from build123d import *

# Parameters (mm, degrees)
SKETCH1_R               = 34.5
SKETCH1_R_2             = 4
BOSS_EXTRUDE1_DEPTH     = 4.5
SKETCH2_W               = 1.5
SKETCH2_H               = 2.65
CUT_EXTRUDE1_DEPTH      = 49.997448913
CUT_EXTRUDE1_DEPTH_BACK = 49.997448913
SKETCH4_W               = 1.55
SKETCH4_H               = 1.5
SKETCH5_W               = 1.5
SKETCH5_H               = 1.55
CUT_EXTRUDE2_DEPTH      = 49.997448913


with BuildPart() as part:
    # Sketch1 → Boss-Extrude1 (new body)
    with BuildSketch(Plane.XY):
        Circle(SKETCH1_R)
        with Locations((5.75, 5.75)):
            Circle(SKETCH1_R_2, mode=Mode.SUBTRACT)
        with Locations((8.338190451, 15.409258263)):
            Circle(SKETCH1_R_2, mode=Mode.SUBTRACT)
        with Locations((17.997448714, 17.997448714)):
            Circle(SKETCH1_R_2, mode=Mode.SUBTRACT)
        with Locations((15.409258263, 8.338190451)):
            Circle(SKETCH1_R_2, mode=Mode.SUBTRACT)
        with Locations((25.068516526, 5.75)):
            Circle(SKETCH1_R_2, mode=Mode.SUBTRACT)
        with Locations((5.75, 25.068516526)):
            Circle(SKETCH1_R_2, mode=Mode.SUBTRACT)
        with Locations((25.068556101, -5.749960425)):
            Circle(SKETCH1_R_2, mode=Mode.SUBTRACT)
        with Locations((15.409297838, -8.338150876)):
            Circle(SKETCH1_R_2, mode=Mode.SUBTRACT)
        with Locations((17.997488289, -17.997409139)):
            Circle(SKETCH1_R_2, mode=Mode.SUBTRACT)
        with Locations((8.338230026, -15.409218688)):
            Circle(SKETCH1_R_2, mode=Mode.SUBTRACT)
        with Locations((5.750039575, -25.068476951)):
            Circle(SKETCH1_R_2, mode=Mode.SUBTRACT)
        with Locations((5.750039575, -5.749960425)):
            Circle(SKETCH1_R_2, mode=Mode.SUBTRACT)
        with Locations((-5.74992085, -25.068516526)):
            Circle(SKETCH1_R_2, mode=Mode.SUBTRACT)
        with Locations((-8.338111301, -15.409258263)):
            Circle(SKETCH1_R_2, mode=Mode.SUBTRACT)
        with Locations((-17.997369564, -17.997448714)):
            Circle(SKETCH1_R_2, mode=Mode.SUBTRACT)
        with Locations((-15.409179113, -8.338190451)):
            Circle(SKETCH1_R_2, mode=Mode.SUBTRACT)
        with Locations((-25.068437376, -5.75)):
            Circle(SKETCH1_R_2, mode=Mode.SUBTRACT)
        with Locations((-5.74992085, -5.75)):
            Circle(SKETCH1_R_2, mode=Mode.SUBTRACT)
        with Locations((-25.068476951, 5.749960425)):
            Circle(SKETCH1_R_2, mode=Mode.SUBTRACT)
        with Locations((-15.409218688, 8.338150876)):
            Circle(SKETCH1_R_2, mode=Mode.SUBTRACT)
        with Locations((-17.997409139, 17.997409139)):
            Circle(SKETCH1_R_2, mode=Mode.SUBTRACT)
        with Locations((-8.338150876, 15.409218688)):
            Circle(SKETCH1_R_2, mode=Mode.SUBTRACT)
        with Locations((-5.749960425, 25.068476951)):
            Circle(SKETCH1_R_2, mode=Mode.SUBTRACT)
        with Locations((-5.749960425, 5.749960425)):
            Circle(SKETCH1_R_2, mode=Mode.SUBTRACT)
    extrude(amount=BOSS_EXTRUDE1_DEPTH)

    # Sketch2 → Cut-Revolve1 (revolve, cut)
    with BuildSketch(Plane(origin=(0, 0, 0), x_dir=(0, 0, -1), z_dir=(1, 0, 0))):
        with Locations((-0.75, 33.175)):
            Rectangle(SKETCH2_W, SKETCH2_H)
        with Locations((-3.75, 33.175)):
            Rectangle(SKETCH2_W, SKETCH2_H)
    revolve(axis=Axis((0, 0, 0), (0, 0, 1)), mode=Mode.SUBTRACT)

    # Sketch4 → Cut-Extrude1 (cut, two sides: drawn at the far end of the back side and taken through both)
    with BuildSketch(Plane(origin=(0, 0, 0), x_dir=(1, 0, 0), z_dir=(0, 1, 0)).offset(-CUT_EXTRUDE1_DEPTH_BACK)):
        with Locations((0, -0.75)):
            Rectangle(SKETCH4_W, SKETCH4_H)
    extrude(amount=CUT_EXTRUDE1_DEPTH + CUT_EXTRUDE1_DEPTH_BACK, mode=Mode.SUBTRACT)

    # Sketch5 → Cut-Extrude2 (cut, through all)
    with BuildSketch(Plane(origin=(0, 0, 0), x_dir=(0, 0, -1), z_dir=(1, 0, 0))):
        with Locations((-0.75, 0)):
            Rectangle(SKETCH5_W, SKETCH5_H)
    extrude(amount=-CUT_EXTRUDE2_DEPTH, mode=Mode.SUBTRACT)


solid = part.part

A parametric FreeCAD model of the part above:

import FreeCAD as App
import Part
import Sketcher

V = App.Vector


def add_polygon(sketch, points):
    """Adds a closed chain of lines whose ends are joined by coincident constraints."""
    first, n = sketch.GeometryCount, len(points)
    for a, b in zip(points, points[1:] + points[:1]):
        sketch.addGeometry(Part.LineSegment(App.Vector(*a, 0), App.Vector(*b, 0)), False)
    for i in range(n):
        sketch.addConstraint(Sketcher.Constraint("Coincident", first + i, 2, first + (i + 1) % n, 1))

doc = App.newDocument("Part")
body = doc.addObject("PartDesign::Body", "Body")

sketch1 = doc.addObject("Sketcher::SketchObject", "Sketch")
body.addObject(sketch1)
sketch1.AttachmentSupport = (doc.XY_Plane, [""])
sketch1.MapMode = "FlatFace"
sketch1.addGeometry(Part.Circle(V(0, 0, 0), V(0, 0, 1), 34.5), False)
sketch1.addGeometry(Part.Circle(V(-18, -18, 0), V(0, 0, 1), 4), False)
sketch1.addGeometry(Part.Circle(V(-5.7, -25.1, 0), V(0, 0, 1), 4), False)
sketch1.addGeometry(Part.Circle(V(-8.3, -15.4, 0), V(0, 0, 1), 4), False)
sketch1.addGeometry(Part.Circle(V(-15.4, -8.3, 0), V(0, 0, 1), 4), False)
sketch1.addGeometry(Part.Circle(V(-25.1, -5.8, 0), V(0, 0, 1), 4), False)
sketch1.addGeometry(Part.Circle(V(-5.7, -5.8, 0), V(0, 0, 1), 4), False)
sketch1.addGeometry(Part.Circle(V(5.8, -25.1, 0), V(0, 0, 1), 4), False)
sketch1.addGeometry(Part.Circle(V(8.3, -15.4, 0), V(0, 0, 1), 4), False)
sketch1.addGeometry(Part.Circle(V(18, -18, 0), V(0, 0, 1), 4), False)
sketch1.addGeometry(Part.Circle(V(5.8, -5.7, 0), V(0, 0, 1), 4), False)
sketch1.addGeometry(Part.Circle(V(15.4, -8.3, 0), V(0, 0, 1), 4), False)
sketch1.addGeometry(Part.Circle(V(25.1, -5.7, 0), V(0, 0, 1), 4), False)
sketch1.addGeometry(Part.Circle(V(-25.1, 5.7, 0), V(0, 0, 1), 4), False)
sketch1.addGeometry(Part.Circle(V(-15.4, 8.3, 0), V(0, 0, 1), 4), False)
sketch1.addGeometry(Part.Circle(V(-5.7, 5.7, 0), V(0, 0, 1), 4), False)
sketch1.addGeometry(Part.Circle(V(-18, 18, 0), V(0, 0, 1), 4), False)
sketch1.addGeometry(Part.Circle(V(-8.3, 15.4, 0), V(0, 0, 1), 4), False)
sketch1.addGeometry(Part.Circle(V(-5.7, 25.1, 0), V(0, 0, 1), 4), False)
sketch1.addGeometry(Part.Circle(V(5.8, 5.8, 0), V(0, 0, 1), 4), False)
sketch1.addGeometry(Part.Circle(V(25.1, 5.8, 0), V(0, 0, 1), 4), False)
sketch1.addGeometry(Part.Circle(V(15.4, 8.3, 0), V(0, 0, 1), 4), False)
sketch1.addGeometry(Part.Circle(V(8.3, 15.4, 0), V(0, 0, 1), 4), False)
sketch1.addGeometry(Part.Circle(V(5.8, 25.1, 0), V(0, 0, 1), 4), False)
sketch1.addGeometry(Part.Circle(V(18, 18, 0), V(0, 0, 1), 4), False)
sketch1.addConstraint(Sketcher.Constraint("Coincident", 0, 3, -1, 1))
sketch1.addConstraint(Sketcher.Constraint("Equal", 1, 2))
sketch1.addConstraint(Sketcher.Constraint("Equal", 2, 3))
sketch1.addConstraint(Sketcher.Constraint("Equal", 3, 4))
sketch1.addConstraint(Sketcher.Constraint("Equal", 4, 5))
sketch1.addConstraint(Sketcher.Constraint("Equal", 5, 6))
sketch1.addConstraint(Sketcher.Constraint("Equal", 6, 7))
sketch1.addConstraint(Sketcher.Constraint("Equal", 7, 8))
sketch1.addConstraint(Sketcher.Constraint("Equal", 8, 9))
sketch1.addConstraint(Sketcher.Constraint("Equal", 9, 10))
sketch1.addConstraint(Sketcher.Constraint("Equal", 10, 11))
sketch1.addConstraint(Sketcher.Constraint("Equal", 11, 12))
sketch1.addConstraint(Sketcher.Constraint("Equal", 12, 13))
sketch1.addConstraint(Sketcher.Constraint("Equal", 13, 14))
sketch1.addConstraint(Sketcher.Constraint("Equal", 14, 15))
sketch1.addConstraint(Sketcher.Constraint("Equal", 15, 16))
sketch1.addConstraint(Sketcher.Constraint("Equal", 16, 17))
sketch1.addConstraint(Sketcher.Constraint("Equal", 17, 18))
sketch1.addConstraint(Sketcher.Constraint("Equal", 18, 19))
sketch1.addConstraint(Sketcher.Constraint("Equal", 19, 20))
sketch1.addConstraint(Sketcher.Constraint("Equal", 20, 21))
sketch1.addConstraint(Sketcher.Constraint("Equal", 21, 22))
sketch1.addConstraint(Sketcher.Constraint("Equal", 22, 23))
sketch1.addConstraint(Sketcher.Constraint("Equal", 23, 24))
sketch1.addConstraint(Sketcher.Constraint("Horizontal", 5, 3, 6, 3))
sketch1.addConstraint(Sketcher.Constraint("Horizontal", 10, 3, 12, 3))
sketch1.addConstraint(Sketcher.Constraint("Horizontal", 13, 3, 15, 3))
sketch1.addConstraint(Sketcher.Constraint("Horizontal", 19, 3, 20, 3))
sketch1.addConstraint(Sketcher.Constraint("Vertical", 2, 3, 6, 3))
sketch1.addConstraint(Sketcher.Constraint("Vertical", 7, 3, 10, 3))
sketch1.addConstraint(Sketcher.Constraint("Vertical", 15, 3, 18, 3))
sketch1.addConstraint(Sketcher.Constraint("Vertical", 19, 3, 23, 3))
sketch1.addConstraint(Sketcher.Constraint("Diameter", 0, 69.0))
sketch1.addConstraint(Sketcher.Constraint("Diameter", 1, 8.0))
sketch1.addConstraint(Sketcher.Constraint("DistanceX", 15, 3, 10, 3, 11.5))
sketch1.addConstraint(Sketcher.Constraint("DistanceY", 6, 3, 19, 3, 11.5))
sketch1.addConstraint(Sketcher.Constraint("DistanceY", 5, 3, -1, 1, 5.75))
sketch1.addConstraint(Sketcher.Constraint("DistanceX", -1, 1, 19, 3, 5.75))
sketch1.addConstraint(Sketcher.Constraint("DistanceX", 3, 3, 9, 3, 26.3356))
sketch1.addConstraint(Sketcher.Constraint("DistanceX", 1, 3, -1, 1, 17.99737))
sketch1.addConstraint(Sketcher.Constraint("DistanceY", 1, 3, -1, 1, 17.997449))
sketch1.addConstraint(Sketcher.Constraint("DistanceX", 2, 3, -1, 1, 5.749921))
sketch1.addConstraint(Sketcher.Constraint("DistanceX", 3, 3, -1, 1, 8.338111))
sketch1.addConstraint(Sketcher.Constraint("DistanceY", 3, 3, -1, 1, 15.409258))
sketch1.addConstraint(Sketcher.Constraint("DistanceX", 4, 3, -1, 1, 15.409179))
sketch1.addConstraint(Sketcher.Constraint("DistanceY", 4, 3, -1, 1, 8.33819))
sketch1.addConstraint(Sketcher.Constraint("DistanceX", -1, 1, 7, 3, 5.75004))
sketch1.addConstraint(Sketcher.Constraint("DistanceX", -1, 1, 8, 3, 8.33823))
sketch1.addConstraint(Sketcher.Constraint("DistanceY", 8, 3, -1, 1, 15.409219))
sketch1.addConstraint(Sketcher.Constraint("DistanceY", 9, 3, -1, 1, 17.997409))
sketch1.addConstraint(Sketcher.Constraint("DistanceY", 10, 3, -1, 1, 5.74996))
sketch1.addConstraint(Sketcher.Constraint("DistanceY", 11, 3, -1, 1, 8.338151))
sketch1.addConstraint(Sketcher.Constraint("DistanceY", -1, 1, 13, 3, 5.74996))
sketch1.addConstraint(Sketcher.Constraint("DistanceX", 14, 3, -1, 1, 15.409219))
sketch1.addConstraint(Sketcher.Constraint("DistanceY", -1, 1, 14, 3, 8.338151))
sketch1.addConstraint(Sketcher.Constraint("DistanceX", 16, 3, -1, 1, 17.997409))
sketch1.addConstraint(Sketcher.Constraint("DistanceY", -1, 1, 16, 3, 17.997409))
sketch1.addConstraint(Sketcher.Constraint("DistanceX", 17, 3, -1, 1, 8.338151))
sketch1.addConstraint(Sketcher.Constraint("DistanceY", -1, 1, 17, 3, 15.409219))
sketch1.addConstraint(Sketcher.Constraint("DistanceX", -1, 1, 21, 3, 15.409258))
sketch1.addConstraint(Sketcher.Constraint("DistanceY", -1, 1, 21, 3, 8.33819))
sketch1.addConstraint(Sketcher.Constraint("DistanceX", -1, 1, 22, 3, 8.33819))
sketch1.addConstraint(Sketcher.Constraint("DistanceY", -1, 1, 22, 3, 15.409258))
sketch1.addConstraint(Sketcher.Constraint("DistanceX", -1, 1, 24, 3, 17.997449))
sketch1.addConstraint(Sketcher.Constraint("DistanceY", -1, 1, 24, 3, 17.997449))
sketch1.addConstraint(Sketcher.Constraint("DistanceY", 2, 3, 3, 3, 9.659258))
sketch1.addConstraint(Sketcher.Constraint("DistanceX", 5, 3, 4, 3, 9.659258))
sketch1.addConstraint(Sketcher.Constraint("DistanceY", 7, 3, 3, 3, 9.659219))
sketch1.addConstraint(Sketcher.Constraint("DistanceX", 11, 3, 9, 3, 2.58819))
sketch1.addConstraint(Sketcher.Constraint("DistanceX", 11, 3, 12, 3, 9.659258))
sketch1.addConstraint(Sketcher.Constraint("DistanceX", 13, 3, 14, 3, 9.659258))
sketch1.addConstraint(Sketcher.Constraint("DistanceY", 17, 3, 18, 3, 9.659258))
sketch1.addConstraint(Sketcher.Constraint("DistanceX", 11, 3, 20, 3, 9.659219))
sketch1.addConstraint(Sketcher.Constraint("DistanceY", 22, 3, 23, 3, 9.659258))
pad1 = doc.addObject("PartDesign::Pad", "Pad")
body.addObject(pad1)
pad1.Profile = sketch1
pad1.Length = 4.5

sketch2 = doc.addObject("Sketcher::SketchObject", "Sketch001")
body.addObject(sketch2)
sketch2.AttachmentSupport = (doc.YZ_Plane, [""])
sketch2.MapMode = "FlatFace"
add_polygon(sketch2, [(34.5, 1.5), (31.9, 1.5), (31.9, 0), (34.5, 0)])
add_polygon(sketch2, [(34.5, 4.5), (31.9, 4.5), (31.9, 3), (34.5, 3)])
sketch2.addConstraint(Sketcher.Constraint("Horizontal", 0))
sketch2.addConstraint(Sketcher.Constraint("Vertical", 1))
sketch2.addConstraint(Sketcher.Constraint("Horizontal", 2))
sketch2.addConstraint(Sketcher.Constraint("Vertical", 3))
sketch2.addConstraint(Sketcher.Constraint("Horizontal", 4))
sketch2.addConstraint(Sketcher.Constraint("Vertical", 5))
sketch2.addConstraint(Sketcher.Constraint("Horizontal", 6))
sketch2.addConstraint(Sketcher.Constraint("Vertical", 7))
sketch2.addConstraint(Sketcher.Constraint("PointOnObject", 1, 2, -1))
sketch2.addConstraint(Sketcher.Constraint("Vertical", 1, 2, 4, 2))
sketch2.addConstraint(Sketcher.Constraint("Vertical", 3, 2, 6, 2))
sketch2.addConstraint(Sketcher.Constraint("Equal", 3, 5))
sketch2.addConstraint(Sketcher.Constraint("DistanceY", 1, 2, 1, 1, 1.5))
sketch2.addConstraint(Sketcher.Constraint("DistanceY", -1, 1, 5, 2, 3.0))
sketch2.addConstraint(Sketcher.Constraint("DistanceX", 0, 2, 0, 1, 2.65))
sketch2.addConstraint(Sketcher.Constraint("DistanceX", -1, 1, 2, 2, 34.5))
groove = doc.addObject("PartDesign::Groove", "Groove")
body.addObject(groove)
groove.Profile = sketch2
groove.ReferenceAxis = (sketch2, ["V_Axis"])
groove.Angle = 360

sketch3 = doc.addObject("Sketcher::SketchObject", "Sketch002")
body.addObject(sketch3)
sketch3.AttachmentSupport = (doc.XZ_Plane, [""])
sketch3.MapMode = "FlatFace"
add_polygon(sketch3, [(-0.8, 0), (-0.8, 1.5), (0.8, 1.5), (0.8, 0)])
sketch3.addConstraint(Sketcher.Constraint("Vertical", 0))
sketch3.addConstraint(Sketcher.Constraint("Horizontal", 1))
sketch3.addConstraint(Sketcher.Constraint("Vertical", 2))
sketch3.addConstraint(Sketcher.Constraint("Horizontal", 3))
sketch3.addConstraint(Sketcher.Constraint("Symmetric", 2, 2, 3, 2, -1, 1))
sketch3.addConstraint(Sketcher.Constraint("DistanceY", 0, 1, 0, 2, 1.5))
sketch3.addConstraint(Sketcher.Constraint("DistanceX", 1, 1, 1, 2, 1.55))
pocket1 = doc.addObject("PartDesign::Pocket", "Pocket")
body.addObject(pocket1)
pocket1.Profile = sketch3
pocket1.Type = "ThroughAll"
pocket1.Midplane = True

sketch4 = doc.addObject("Sketcher::SketchObject", "Sketch003")
body.addObject(sketch4)
sketch4.AttachmentSupport = (doc.YZ_Plane, [""])
sketch4.MapMode = "FlatFace"
add_polygon(sketch4, [(0.8, 1.5), (-0.8, 1.5), (-0.8, 0), (0.8, 0)])
sketch4.addConstraint(Sketcher.Constraint("Horizontal", 0))
sketch4.addConstraint(Sketcher.Constraint("Vertical", 1))
sketch4.addConstraint(Sketcher.Constraint("Horizontal", 2))
sketch4.addConstraint(Sketcher.Constraint("Vertical", 3))
sketch4.addConstraint(Sketcher.Constraint("Symmetric", 1, 2, 2, 2, -1, 1))
sketch4.addConstraint(Sketcher.Constraint("DistanceY", 1, 2, 1, 1, 1.5))
sketch4.addConstraint(Sketcher.Constraint("DistanceX", 0, 2, 0, 1, 1.55))
pocket2 = doc.addObject("PartDesign::Pocket", "Pocket001")
body.addObject(pocket2)
pocket2.Profile = sketch4
pocket2.Type = "ThroughAll"

doc.recompute()
